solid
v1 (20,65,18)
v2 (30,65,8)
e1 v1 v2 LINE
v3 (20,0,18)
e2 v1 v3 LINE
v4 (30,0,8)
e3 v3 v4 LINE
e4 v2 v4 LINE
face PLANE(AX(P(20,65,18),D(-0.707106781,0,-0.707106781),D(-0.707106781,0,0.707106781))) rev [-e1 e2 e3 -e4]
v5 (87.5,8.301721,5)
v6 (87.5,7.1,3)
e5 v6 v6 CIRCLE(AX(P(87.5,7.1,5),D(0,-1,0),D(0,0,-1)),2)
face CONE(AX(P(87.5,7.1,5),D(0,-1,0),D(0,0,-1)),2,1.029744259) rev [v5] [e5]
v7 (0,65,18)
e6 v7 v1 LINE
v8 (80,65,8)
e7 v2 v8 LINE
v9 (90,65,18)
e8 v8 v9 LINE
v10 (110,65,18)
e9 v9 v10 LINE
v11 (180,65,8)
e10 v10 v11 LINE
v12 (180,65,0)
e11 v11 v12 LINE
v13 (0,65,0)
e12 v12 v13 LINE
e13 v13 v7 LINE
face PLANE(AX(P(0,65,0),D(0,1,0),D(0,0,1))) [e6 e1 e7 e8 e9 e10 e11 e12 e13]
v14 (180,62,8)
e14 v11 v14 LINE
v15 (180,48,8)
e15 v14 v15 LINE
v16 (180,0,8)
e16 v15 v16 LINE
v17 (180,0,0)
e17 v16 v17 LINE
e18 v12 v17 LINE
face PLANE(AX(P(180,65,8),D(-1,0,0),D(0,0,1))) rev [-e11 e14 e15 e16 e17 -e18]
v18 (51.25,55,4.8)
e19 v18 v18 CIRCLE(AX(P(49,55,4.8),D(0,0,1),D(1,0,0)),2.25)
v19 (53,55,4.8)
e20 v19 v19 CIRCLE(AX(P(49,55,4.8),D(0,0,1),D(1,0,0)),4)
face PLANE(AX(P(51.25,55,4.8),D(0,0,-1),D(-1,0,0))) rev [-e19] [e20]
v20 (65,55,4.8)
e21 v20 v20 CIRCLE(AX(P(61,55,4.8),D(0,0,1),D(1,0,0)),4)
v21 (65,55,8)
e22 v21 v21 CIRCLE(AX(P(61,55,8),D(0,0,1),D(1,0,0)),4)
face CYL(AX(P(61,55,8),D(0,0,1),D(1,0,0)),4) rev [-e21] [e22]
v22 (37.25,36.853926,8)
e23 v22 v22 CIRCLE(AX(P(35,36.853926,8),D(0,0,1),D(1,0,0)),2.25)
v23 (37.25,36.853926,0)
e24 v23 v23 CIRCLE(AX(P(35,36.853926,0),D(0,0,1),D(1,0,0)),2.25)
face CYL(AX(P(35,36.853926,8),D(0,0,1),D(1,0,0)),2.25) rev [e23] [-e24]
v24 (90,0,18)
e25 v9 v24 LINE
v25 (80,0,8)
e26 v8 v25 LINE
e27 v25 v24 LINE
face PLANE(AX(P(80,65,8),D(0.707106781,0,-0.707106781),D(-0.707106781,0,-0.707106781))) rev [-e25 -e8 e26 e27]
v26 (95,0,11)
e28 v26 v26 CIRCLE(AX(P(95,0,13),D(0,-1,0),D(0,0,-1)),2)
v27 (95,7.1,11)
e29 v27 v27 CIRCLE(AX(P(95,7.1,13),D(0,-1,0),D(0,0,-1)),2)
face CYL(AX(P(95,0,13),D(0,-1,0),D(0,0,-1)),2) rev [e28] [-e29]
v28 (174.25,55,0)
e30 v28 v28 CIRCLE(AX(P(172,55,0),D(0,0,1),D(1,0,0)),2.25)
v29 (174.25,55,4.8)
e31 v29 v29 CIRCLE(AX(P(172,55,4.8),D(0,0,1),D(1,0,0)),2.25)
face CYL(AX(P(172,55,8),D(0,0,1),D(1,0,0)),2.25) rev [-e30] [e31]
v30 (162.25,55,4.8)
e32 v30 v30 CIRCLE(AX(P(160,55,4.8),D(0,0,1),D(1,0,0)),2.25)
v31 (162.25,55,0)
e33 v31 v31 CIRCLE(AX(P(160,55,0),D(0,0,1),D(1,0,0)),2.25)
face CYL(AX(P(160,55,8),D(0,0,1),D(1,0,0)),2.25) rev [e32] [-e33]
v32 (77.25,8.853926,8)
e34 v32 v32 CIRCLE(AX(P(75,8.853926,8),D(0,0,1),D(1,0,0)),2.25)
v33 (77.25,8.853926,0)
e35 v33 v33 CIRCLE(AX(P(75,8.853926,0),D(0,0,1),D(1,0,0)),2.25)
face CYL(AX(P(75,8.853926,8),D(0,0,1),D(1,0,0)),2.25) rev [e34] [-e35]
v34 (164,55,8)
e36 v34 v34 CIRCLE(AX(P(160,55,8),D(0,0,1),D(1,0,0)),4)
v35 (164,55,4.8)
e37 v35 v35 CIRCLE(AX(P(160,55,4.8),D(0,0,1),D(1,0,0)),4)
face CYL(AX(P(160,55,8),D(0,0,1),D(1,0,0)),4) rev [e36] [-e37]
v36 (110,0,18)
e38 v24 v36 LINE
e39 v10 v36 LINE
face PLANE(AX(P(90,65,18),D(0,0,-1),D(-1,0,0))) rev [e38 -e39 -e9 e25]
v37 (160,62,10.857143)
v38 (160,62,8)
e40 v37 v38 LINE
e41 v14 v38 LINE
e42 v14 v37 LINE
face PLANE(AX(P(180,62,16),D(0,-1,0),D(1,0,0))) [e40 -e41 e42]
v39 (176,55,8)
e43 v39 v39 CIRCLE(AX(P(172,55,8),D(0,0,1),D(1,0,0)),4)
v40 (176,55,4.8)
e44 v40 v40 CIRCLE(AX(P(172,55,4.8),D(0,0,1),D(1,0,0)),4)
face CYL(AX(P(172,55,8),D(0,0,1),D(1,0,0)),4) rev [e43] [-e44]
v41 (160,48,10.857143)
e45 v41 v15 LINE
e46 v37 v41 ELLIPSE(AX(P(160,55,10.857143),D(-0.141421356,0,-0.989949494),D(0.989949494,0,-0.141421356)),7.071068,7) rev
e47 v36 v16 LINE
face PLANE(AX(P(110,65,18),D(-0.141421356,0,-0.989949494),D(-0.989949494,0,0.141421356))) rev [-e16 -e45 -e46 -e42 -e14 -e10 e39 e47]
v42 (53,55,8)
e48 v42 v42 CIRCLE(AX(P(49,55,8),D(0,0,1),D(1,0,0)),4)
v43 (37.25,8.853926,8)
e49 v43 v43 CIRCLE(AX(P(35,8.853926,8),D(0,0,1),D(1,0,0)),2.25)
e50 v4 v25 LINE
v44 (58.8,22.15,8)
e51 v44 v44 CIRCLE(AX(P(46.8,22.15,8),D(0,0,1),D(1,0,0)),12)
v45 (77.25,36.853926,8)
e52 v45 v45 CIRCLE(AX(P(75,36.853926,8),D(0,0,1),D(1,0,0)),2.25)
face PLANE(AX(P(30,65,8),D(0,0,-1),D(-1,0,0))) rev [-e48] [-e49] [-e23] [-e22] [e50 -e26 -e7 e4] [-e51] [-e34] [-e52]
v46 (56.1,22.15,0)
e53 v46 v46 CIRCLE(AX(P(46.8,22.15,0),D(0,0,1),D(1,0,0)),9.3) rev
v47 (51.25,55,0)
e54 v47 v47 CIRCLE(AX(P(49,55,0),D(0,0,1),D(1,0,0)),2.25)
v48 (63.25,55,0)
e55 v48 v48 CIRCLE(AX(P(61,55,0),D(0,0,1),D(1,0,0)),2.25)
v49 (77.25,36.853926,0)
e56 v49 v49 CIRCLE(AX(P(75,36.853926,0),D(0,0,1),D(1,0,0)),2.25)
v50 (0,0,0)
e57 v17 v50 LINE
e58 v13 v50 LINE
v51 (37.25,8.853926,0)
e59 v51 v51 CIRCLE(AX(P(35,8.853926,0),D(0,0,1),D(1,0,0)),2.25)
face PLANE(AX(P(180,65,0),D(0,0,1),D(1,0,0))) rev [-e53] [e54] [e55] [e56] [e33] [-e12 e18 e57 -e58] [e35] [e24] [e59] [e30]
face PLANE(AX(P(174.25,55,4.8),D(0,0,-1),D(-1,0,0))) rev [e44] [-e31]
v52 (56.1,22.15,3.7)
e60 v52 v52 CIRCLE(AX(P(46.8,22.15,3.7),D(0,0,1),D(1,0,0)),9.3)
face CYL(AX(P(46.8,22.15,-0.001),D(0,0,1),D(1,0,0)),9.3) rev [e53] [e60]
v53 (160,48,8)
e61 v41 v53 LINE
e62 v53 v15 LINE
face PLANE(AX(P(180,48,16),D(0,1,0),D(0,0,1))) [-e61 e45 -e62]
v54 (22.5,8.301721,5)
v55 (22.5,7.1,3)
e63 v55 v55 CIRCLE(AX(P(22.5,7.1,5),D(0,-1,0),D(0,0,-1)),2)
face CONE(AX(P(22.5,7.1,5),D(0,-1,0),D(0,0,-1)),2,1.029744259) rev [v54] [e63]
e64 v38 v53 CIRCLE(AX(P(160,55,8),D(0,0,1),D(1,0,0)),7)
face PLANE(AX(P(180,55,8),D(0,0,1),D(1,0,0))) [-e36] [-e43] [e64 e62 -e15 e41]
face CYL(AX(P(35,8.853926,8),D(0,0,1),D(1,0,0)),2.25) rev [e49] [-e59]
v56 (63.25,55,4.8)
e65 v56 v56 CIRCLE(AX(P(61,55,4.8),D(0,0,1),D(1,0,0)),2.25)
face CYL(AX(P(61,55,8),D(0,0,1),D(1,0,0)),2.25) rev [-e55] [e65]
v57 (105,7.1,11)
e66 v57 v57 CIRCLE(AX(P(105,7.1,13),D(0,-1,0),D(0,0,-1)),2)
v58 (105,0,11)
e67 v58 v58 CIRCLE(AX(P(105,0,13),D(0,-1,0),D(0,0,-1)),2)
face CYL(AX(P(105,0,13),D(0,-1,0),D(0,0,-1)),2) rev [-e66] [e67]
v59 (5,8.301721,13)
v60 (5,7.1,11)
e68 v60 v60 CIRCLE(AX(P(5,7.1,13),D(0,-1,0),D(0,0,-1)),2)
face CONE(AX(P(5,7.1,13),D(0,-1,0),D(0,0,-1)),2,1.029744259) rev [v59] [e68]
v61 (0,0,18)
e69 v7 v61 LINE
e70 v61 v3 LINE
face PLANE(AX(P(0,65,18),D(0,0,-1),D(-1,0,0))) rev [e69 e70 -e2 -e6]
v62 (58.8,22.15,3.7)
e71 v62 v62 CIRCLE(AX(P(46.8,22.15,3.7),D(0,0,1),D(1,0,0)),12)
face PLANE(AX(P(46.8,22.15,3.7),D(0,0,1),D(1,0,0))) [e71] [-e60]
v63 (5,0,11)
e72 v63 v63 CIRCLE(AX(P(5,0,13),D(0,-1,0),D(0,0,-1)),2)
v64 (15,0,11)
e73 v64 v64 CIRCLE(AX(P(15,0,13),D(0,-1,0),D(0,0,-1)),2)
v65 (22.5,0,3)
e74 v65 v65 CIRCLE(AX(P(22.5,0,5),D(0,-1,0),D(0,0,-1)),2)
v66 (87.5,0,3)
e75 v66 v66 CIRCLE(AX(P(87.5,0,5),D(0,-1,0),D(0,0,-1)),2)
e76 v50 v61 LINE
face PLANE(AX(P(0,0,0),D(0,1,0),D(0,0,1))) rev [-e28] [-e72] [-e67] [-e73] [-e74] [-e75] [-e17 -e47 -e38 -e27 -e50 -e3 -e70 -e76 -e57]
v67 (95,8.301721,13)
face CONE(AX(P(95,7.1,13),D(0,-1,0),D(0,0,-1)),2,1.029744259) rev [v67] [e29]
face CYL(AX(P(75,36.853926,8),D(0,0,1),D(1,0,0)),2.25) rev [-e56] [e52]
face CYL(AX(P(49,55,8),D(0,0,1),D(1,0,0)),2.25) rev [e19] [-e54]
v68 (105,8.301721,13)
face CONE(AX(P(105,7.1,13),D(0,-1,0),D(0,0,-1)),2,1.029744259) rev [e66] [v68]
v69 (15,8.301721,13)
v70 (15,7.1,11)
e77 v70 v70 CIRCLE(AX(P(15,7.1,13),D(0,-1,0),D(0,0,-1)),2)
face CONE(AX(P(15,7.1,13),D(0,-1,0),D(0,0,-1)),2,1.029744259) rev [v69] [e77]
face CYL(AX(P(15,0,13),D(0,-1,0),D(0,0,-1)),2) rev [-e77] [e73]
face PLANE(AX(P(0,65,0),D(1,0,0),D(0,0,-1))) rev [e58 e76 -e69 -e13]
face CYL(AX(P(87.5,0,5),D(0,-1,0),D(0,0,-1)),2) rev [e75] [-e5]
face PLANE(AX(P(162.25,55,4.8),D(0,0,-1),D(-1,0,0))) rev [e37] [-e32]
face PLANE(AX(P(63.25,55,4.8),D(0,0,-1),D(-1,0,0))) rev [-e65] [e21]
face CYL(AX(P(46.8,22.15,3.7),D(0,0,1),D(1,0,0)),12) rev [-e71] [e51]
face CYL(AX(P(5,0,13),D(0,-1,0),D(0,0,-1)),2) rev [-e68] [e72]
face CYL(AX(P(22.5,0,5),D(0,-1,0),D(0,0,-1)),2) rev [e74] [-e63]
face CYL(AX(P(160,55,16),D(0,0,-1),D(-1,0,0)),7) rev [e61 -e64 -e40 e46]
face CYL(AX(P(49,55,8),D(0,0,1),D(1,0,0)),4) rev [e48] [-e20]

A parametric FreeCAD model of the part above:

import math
import FreeCAD as App
import Part
import Sketcher
Q = App.Units.Quantity

doc = App.newDocument("Part")
params = doc.addObject("Spreadsheet::Sheet", "Params")
for row, (alias, value) in enumerate([
    ("sketch1_width", "180 mm"),
    ("sketch1_width2", "20 mm"),
    ("sketch1_width3", "50 mm"),
    ("sketch1_height", "18 mm"),
    ("sketch1_height2", "8 mm"),
    ("pad1_length", "65 mm"),
    ("sketch2_diameter", "4 mm"),
    ("hole_diameter", "4 mm"),
    ("hole_depth", "7.1 mm"),
    ("sketch3_radius", "7 mm"),
    ("sketch3_width", "20 mm"),
    ("pocket1_length", "8 mm"),
    ("sketch4_diameter", "4.5 mm"),
    ("hole2_diameter", "4.5 mm"),
    ("hole2_depth", "8 mm"),
    ("hole2_cbore_diameter", "8 mm"),
    ("hole2_cbore_depth", "3.2 mm"),
    ("sketch5_diameter", "24 mm"),
    ("pocket2_length", "4.3 mm"),
    ("sketch6_diameter", "18.6 mm"),
    ("sketch7_diameter", "4.5 mm"),
    ("hole3_diameter", "4.5 mm"),
    ("hole3_depth", "8 mm"),
], start=1):
    params.set(f"A{row}", alias)
    params.set(f"B{row}", "=" + value)
    params.setAlias(f"B{row}", alias)

body = doc.addObject("PartDesign::Body", "Body")

# Sketch on XZ plane
sketch1 = body.newObject("Sketcher::SketchObject", "Sketch")
sketch1.AttachmentSupport = (doc.getObject("XZ_Plane"), [""])
sketch1.MapMode = "FlatFace"
sketch1.addGeometry(Part.LineSegment(App.Vector(180, 0, 0), App.Vector(0, 0, 0)), False)
sketch1.addGeometry(Part.LineSegment(App.Vector(0, 0, 0), App.Vector(0, 18, 0)), False)
sketch1.addGeometry(Part.LineSegment(App.Vector(0, 18, 0), App.Vector(20, 18, 0)), False)
sketch1.addGeometry(Part.LineSegment(App.Vector(20, 18, 0), App.Vector(30, 8, 0)), False)
sketch1.addGeometry(Part.LineSegment(App.Vector(30, 8, 0), App.Vector(80, 8, 0)), False)
sketch1.addGeometry(Part.LineSegment(App.Vector(80, 8, 0), App.Vector(90, 18, 0)), False)
sketch1.addGeometry(Part.LineSegment(App.Vector(90, 18, 0), App.Vector(110, 18, 0)), False)
sketch1.addGeometry(Part.LineSegment(App.Vector(110, 18, 0), App.Vector(180, 8, 0)), False)
sketch1.addGeometry(Part.LineSegment(App.Vector(180, 8, 0), App.Vector(180, 0, 0)), False)
sketch1.addConstraint(Sketcher.Constraint("Coincident", 0, 2, 1, 1))
sketch1.addConstraint(Sketcher.Constraint("Coincident", 1, 2, 2, 1))
sketch1.addConstraint(Sketcher.Constraint("Coincident", 2, 2, 3, 1))
sketch1.addConstraint(Sketcher.Constraint("Coincident", 3, 2, 4, 1))
sketch1.addConstraint(Sketcher.Constraint("Coincident", 4, 2, 5, 1))
sketch1.addConstraint(Sketcher.Constraint("Coincident", 5, 2, 6, 1))
sketch1.addConstraint(Sketcher.Constraint("Coincident", 6, 2, 7, 1))
sketch1.addConstraint(Sketcher.Constraint("Coincident", 7, 2, 8, 1))
sketch1.addConstraint(Sketcher.Constraint("Coincident", 8, 2, 0, 1))
sketch1.addConstraint(Sketcher.Constraint("Horizontal", 0))
sketch1.addConstraint(Sketcher.Constraint("Vertical", 1))
sketch1.addConstraint(Sketcher.Constraint("Horizontal", 2))
sketch1.addConstraint(Sketcher.Constraint("Horizontal", 4))
sketch1.addConstraint(Sketcher.Constraint("Horizontal", 6))
sketch1.addConstraint(Sketcher.Constraint("Vertical", 8))
sketch1.addConstraint(Sketcher.Constraint("Coincident", 0, 2, -1, 1))
sketch1.addConstraint(Sketcher.Constraint("Perpendicular", 3, 5))
sketch1.addConstraint(Sketcher.Constraint("Horizontal", 2, 2, 5, 2))
sketch1.addConstraint(Sketcher.Constraint("Horizontal", 4, 2, 7, 2))
sketch1.addConstraint(Sketcher.Constraint("Equal", 2, 6))
sketch1.addConstraint(Sketcher.Constraint("Equal", 3, 5))
sketch1.addConstraint(Sketcher.Constraint("DistanceX", 0, 2, 0, 1, Q("180 mm")))
sketch1.addConstraint(Sketcher.Constraint("DistanceX", 2, 1, 2, 2, Q("20 mm")))
sketch1.addConstraint(Sketcher.Constraint("DistanceX", 4, 1, 4, 2, Q("50 mm")))
sketch1.addConstraint(Sketcher.Constraint("DistanceY", 1, 1, 1, 2, Q("18 mm")))
sketch1.addConstraint(Sketcher.Constraint("DistanceY", 8, 2, 8, 1, Q("8 mm")))
sketch1.setExpression("Constraints[21]", "Params.sketch1_width")
sketch1.setExpression("Constraints[22]", "Params.sketch1_width2")
sketch1.setExpression("Constraints[23]", "Params.sketch1_width3")
sketch1.setExpression("Constraints[24]", "Params.sketch1_height")
sketch1.setExpression("Constraints[25]", "Params.sketch1_height2")
pad1 = body.newObject("PartDesign::Pad", "Pad")
pad1.Profile = sketch1
pad1.setExpression("Length", "Params.pad1_length")
pad1.Reversed = True

# Sketch on XZ plane
sketch2 = body.newObject("Sketcher::SketchObject", "Sketch001")
sketch2.AttachmentSupport = (doc.getObject("XZ_Plane"), [""])
sketch2.MapMode = "FlatFace"
sketch2.addGeometry(Part.Circle(App.Vector(5, 13, 0), App.Vector(0, 0, 1), 2), False)
sketch2.addGeometry(Part.Circle(App.Vector(15, 13, 0), App.Vector(0, 0, 1), 2), False)
sketch2.addGeometry(Part.Circle(App.Vector(95, 13, 0), App.Vector(0, 0, 1), 2), False)
sketch2.addGeometry(Part.Circle(App.Vector(105, 13, 0), App.Vector(0, 0, 1), 2), False)
sketch2.addGeometry(Part.Circle(App.Vector(22.5, 5, 0), App.Vector(0, 0, 1), 2), False)
sketch2.addGeometry(Part.Circle(App.Vector(87.5, 5, 0), App.Vector(0, 0, 1), 2), False)
sketch2.addConstraint(Sketcher.Constraint("Equal", 0, 1))
sketch2.addConstraint(Sketcher.Constraint("Equal", 1, 2))
sketch2.addConstraint(Sketcher.Constraint("Equal", 2, 3))
sketch2.addConstraint(Sketcher.Constraint("Equal", 3, 4))
sketch2.addConstraint(Sketcher.Constraint("Equal", 4, 5))
sketch2.addConstraint(Sketcher.Constraint("Horizontal", 0, 3, 1, 3))
sketch2.addConstraint(Sketcher.Constraint("Horizontal", 1, 3, 2, 3))
sketch2.addConstraint(Sketcher.Constraint("Horizontal", 2, 3, 3, 3))
sketch2.addConstraint(Sketcher.Constraint("Horizontal", 4, 3, 5, 3))
sketch2.addConstraint(Sketcher.Constraint("Diameter", 0, Q("4 mm")))
sketch2.addConstraint(Sketcher.Constraint("DistanceX", -1, 1, 0, 3, Q("5 mm")))
sketch2.addConstraint(Sketcher.Constraint("DistanceY", -1, 1, 0, 3, Q("13 mm")))
sketch2.addConstraint(Sketcher.Constraint("DistanceX", -1, 1, 1, 3, Q("15 mm")))
sketch2.addConstraint(Sketcher.Constraint("DistanceX", -1, 1, 2, 3, Q("95 mm")))
sketch2.addConstraint(Sketcher.Constraint("DistanceX", -1, 1, 3, 3, Q("105 mm")))
sketch2.addConstraint(Sketcher.Constraint("DistanceY", -1, 1, 4, 3, Q("5 mm")))
sketch2.addConstraint(Sketcher.Constraint("DistanceX", 4, 3, 5, 3, Q("65 mm")))
sketch2.addConstraint(Sketcher.Constraint("DistanceX", -1, 1, 4, 3, Q("22.5 mm")))
sketch2.setExpression("Constraints[9]", "Params.sketch2_diameter")
doc.recompute()
hole = body.newObject("PartDesign::Hole", "Hole")
hole.Profile = sketch2
hole.ThreadType = "None"
hole.setExpression("Diameter", "Params.hole_diameter")
hole.DepthType = "Dimension"
hole.setExpression("Depth", "Params.hole_depth")
hole.DrillPoint = "Angled"
hole.DrillPointAngle = 118

# Sketch on XY plane
sketch3 = body.newObject("Sketcher::SketchObject", "Sketch002")
sketch3.AttachmentSupport = (doc.getObject("XY_Plane"), [""])
sketch3.MapMode = "FlatFace"
sketch3.AttachmentOffset = App.Placement(App.Vector(0, 0, 8), App.Rotation())
sketch3.addGeometry(Part.LineSegment(App.Vector(160, 48, 0), App.Vector(180, 48, 0)), False)
sketch3.addGeometry(Part.ArcOfCircle(Part.Circle(App.Vector(180, 55, 0), App.Vector(0, 0, 1), 7), math.radians(-90), math.radians(90)), False)
sketch3.addGeometry(Part.LineSegment(App.Vector(180, 62, 0), App.Vector(160, 62, 0)), False)
sketch3.addGeometry(Part.ArcOfCircle(Part.Circle(App.Vector(160, 55, 0), App.Vector(0, 0, 1), 7), math.radians(90), math.radians(270)), False)
sketch3.addConstraint(Sketcher.Constraint("Tangent", 0, 2, 1, 1))
sketch3.addConstraint(Sketcher.Constraint("Tangent", 1, 2, 2, 1))
sketch3.addConstraint(Sketcher.Constraint("Tangent", 2, 2, 3, 1))
sketch3.addConstraint(Sketcher.Constraint("Tangent", 3, 2, 0, 1))
sketch3.addConstraint(Sketcher.Constraint("Horizontal", 0))
sketch3.addConstraint(Sketcher.Constraint("Horizontal", 2))
sketch3.addConstraint(Sketcher.Constraint("Radius", 1, Q("7 mm")))
sketch3.addConstraint(Sketcher.Constraint("DistanceX", 0, 1, 0, 2, Q("20 mm")))
sketch3.addConstraint(Sketcher.Constraint("DistanceX", -1, 1, 1, 3, Q("180 mm")))
sketch3.addConstraint(Sketcher.Constraint("DistanceY", -1, 1, 1, 3, Q("55 mm")))
sketch3.setExpression("Constraints[6]", "Params.sketch3_radius")
sketch3.setExpression("Constraints[7]", "Params.sketch3_width")
pocket1 = body.newObject("PartDesign::Pocket", "Pocket")
pocket1.Profile = sketch3
pocket1.setExpression("Length", "Params.pocket1_length")
pocket1.Reversed = True

# Sketch on XY plane
sketch4 = body.newObject("Sketcher::SketchObject", "Sketch003")
sketch4.AttachmentSupport = (doc.getObject("XY_Plane"), [""])
sketch4.MapMode = "FlatFace"
sketch4.AttachmentOffset = App.Placement(App.Vector(0, 0, 8), App.Rotation())
sketch4.addGeometry(Part.Circle(App.Vector(160, 55, 0), App.Vector(0, 0, 1), 2.2), False)
sketch4.addGeometry(Part.Circle(App.Vector(172, 55, 0), App.Vector(0, 0, 1), 2.2), False)
sketch4.addGeometry(Part.Circle(App.Vector(49, 55, 0), App.Vector(0, 0, 1), 2.2), False)
sketch4.addGeometry(Part.Circle(App.Vector(61, 55, 0), App.Vector(0, 0, 1), 2.2), False)
sketch4.addConstraint(Sketcher.Constraint("Equal", 0, 1))
sketch4.addConstraint(Sketcher.Constraint("Equal", 1, 2))
sketch4.addConstraint(Sketcher.Constraint("Equal", 2, 3))
sketch4.addConstraint(Sketcher.Constraint("Horizontal", 0, 3, 1, 3))
sketch4.addConstraint(Sketcher.Constraint("Horizontal", 1, 3, 2, 3))
sketch4.addConstraint(Sketcher.Constraint("Horizontal", 2, 3, 3, 3))
sketch4.addConstraint(Sketcher.Constraint("Diameter", 0, Q("4.5 mm")))
sketch4.addConstraint(Sketcher.Constraint("DistanceX", -1, 1, 0, 3, Q("160 mm")))
sketch4.addConstraint(Sketcher.Constraint("DistanceY", -1, 1, 0, 3, Q("55 mm")))
sketch4.addConstraint(Sketcher.Constraint("DistanceX", -1, 1, 1, 3, Q("172 mm")))
sketch4.addConstraint(Sketcher.Constraint("DistanceX", -1, 1, 2, 3, Q("49 mm")))
sketch4.addConstraint(Sketcher.Constraint("DistanceX", -1, 1, 3, 3, Q("61 mm")))
sketch4.setExpression("Constraints[6]", "Params.sketch4_diameter")
doc.recompute()
hole2 = body.newObject("PartDesign::Hole", "Hole001")
hole2.Profile = sketch4
hole2.ThreadType = "None"
hole2.setExpression("Diameter", "Params.hole2_diameter")
hole2.DepthType = "Dimension"
hole2.setExpression("Depth", "Params.hole2_depth")
hole2.DrillPoint = "Flat"
hole2.HoleCutType = "Counterbore"
hole2.setExpression("HoleCutDiameter", "Params.hole2_cbore_diameter")
hole2.setExpression("HoleCutDepth", "Params.hole2_cbore_depth")

# Sketch on XY plane
sketch5 = body.newObject("Sketcher::SketchObject", "Sketch004")
sketch5.AttachmentSupport = (doc.getObject("XY_Plane"), [""])
sketch5.MapMode = "FlatFace"
sketch5.AttachmentOffset = App.Placement(App.Vector(0, 0, 8), App.Rotation())
sketch5.addGeometry(Part.Circle(App.Vector(47, 22, 0), App.Vector(0, 0, 1), 12), False)
sketch5.addConstraint(Sketcher.Constraint("Diameter", 0, Q("24 mm")))
sketch5.addConstraint(Sketcher.Constraint("DistanceX", -1, 1, 0, 3, Q("46.8 mm")))
sketch5.addConstraint(Sketcher.Constraint("DistanceY", -1, 1, 0, 3, Q("22.15 mm")))
sketch5.setExpression("Constraints[0]", "Params.sketch5_diameter")
pocket2 = body.newObject("PartDesign::Pocket", "Pocket001")
pocket2.Profile = sketch5
pocket2.setExpression("Length", "Params.pocket2_length")

# Sketch on XY plane
sketch6 = body.newObject("Sketcher::SketchObject", "Sketch005")
sketch6.AttachmentSupport = (doc.getObject("XY_Plane"), [""])
sketch6.MapMode = "FlatFace"
sketch6.AttachmentOffset = App.Placement(App.Vector(0, 0, 3.7), App.Rotation())
sketch6.addGeometry(Part.Circle(App.Vector(47, 22, 0), App.Vector(0, 0, 1), 9), False)
sketch6.addConstraint(Sketcher.Constraint("Diameter", 0, Q("18.6 mm")))
sketch6.addConstraint(Sketcher.Constraint("DistanceX", -1, 1, 0, 3, Q("46.8 mm")))
sketch6.addConstraint(Sketcher.Constraint("DistanceY", -1, 1, 0, 3, Q("22.15 mm")))
sketch6.setExpression("Constraints[0]", "Params.sketch6_diameter")
pocket3 = body.newObject("PartDesign::Pocket", "Pocket002")
pocket3.Profile = sketch6
pocket3.Type = "UpToFirst"

# Sketch on XY plane
sketch7 = body.newObject("Sketcher::SketchObject", "Sketch006")
sketch7.AttachmentSupport = (doc.getObject("XY_Plane"), [""])
sketch7.MapMode = "FlatFace"
sketch7.AttachmentOffset = App.Placement(App.Vector(0, 0, 8), App.Rotation())
sketch7.addGeometry(Part.Circle(App.Vector(35, 36.9, 0), App.Vector(0, 0, 1), 2.2), False)
sketch7.addGeometry(Part.Circle(App.Vector(75, 36.9, 0), App.Vector(0, 0, 1), 2.2), False)
sketch7.addGeometry(Part.Circle(App.Vector(75, 8.9, 0), App.Vector(0, 0, 1), 2.2), False)
sketch7.addGeometry(Part.Circle(App.Vector(35, 8.9, 0), App.Vector(0, 0, 1), 2.2), False)
sketch7.addConstraint(Sketcher.Constraint("Equal", 0, 1))
sketch7.addConstraint(Sketcher.Constraint("Equal", 1, 2))
sketch7.addConstraint(Sketcher.Constraint("Equal", 2, 3))
sketch7.addConstraint(Sketcher.Constraint("Horizontal", 0, 3, 1, 3))
sketch7.addConstraint(Sketcher.Constraint("Horizontal", 2, 3, 3, 3))
sketch7.addConstraint(Sketcher.Constraint("Vertical", 1, 3, 2, 3))
sketch7.addConstraint(Sketcher.Constraint("Vertical", 0, 3, 3, 3))
sketch7.addConstraint(Sketcher.Constraint("Diameter", 0, Q("4.5 mm")))
sketch7.addConstraint(Sketcher.Constraint("DistanceX", -1, 1, 0, 3, Q("35 mm")))
sketch7.addConstraint(Sketcher.Constraint("DistanceX", -1, 1, 1, 3, Q("75 mm")))
sketch7.addConstraint(Sketcher.Constraint("DistanceY", 2, 3, 1, 3, Q("28 mm")))
sketch7.addConstraint(Sketcher.Constraint("DistanceY", -1, 1, 0, 3, Q("36.853926 mm")))
sketch7.setExpression("Constraints[7]", "Params.sketch7_diameter")
doc.recompute()
hole3 = body.newObject("PartDesign::Hole", "Hole002")
hole3.Profile = sketch7
hole3.ThreadType = "None"
hole3.setExpression("Diameter", "Params.hole3_diameter")
hole3.DepthType = "Dimension"
hole3.setExpression("Depth", "Params.hole3_depth")
hole3.DrillPoint = "Flat"

doc.recompute()
